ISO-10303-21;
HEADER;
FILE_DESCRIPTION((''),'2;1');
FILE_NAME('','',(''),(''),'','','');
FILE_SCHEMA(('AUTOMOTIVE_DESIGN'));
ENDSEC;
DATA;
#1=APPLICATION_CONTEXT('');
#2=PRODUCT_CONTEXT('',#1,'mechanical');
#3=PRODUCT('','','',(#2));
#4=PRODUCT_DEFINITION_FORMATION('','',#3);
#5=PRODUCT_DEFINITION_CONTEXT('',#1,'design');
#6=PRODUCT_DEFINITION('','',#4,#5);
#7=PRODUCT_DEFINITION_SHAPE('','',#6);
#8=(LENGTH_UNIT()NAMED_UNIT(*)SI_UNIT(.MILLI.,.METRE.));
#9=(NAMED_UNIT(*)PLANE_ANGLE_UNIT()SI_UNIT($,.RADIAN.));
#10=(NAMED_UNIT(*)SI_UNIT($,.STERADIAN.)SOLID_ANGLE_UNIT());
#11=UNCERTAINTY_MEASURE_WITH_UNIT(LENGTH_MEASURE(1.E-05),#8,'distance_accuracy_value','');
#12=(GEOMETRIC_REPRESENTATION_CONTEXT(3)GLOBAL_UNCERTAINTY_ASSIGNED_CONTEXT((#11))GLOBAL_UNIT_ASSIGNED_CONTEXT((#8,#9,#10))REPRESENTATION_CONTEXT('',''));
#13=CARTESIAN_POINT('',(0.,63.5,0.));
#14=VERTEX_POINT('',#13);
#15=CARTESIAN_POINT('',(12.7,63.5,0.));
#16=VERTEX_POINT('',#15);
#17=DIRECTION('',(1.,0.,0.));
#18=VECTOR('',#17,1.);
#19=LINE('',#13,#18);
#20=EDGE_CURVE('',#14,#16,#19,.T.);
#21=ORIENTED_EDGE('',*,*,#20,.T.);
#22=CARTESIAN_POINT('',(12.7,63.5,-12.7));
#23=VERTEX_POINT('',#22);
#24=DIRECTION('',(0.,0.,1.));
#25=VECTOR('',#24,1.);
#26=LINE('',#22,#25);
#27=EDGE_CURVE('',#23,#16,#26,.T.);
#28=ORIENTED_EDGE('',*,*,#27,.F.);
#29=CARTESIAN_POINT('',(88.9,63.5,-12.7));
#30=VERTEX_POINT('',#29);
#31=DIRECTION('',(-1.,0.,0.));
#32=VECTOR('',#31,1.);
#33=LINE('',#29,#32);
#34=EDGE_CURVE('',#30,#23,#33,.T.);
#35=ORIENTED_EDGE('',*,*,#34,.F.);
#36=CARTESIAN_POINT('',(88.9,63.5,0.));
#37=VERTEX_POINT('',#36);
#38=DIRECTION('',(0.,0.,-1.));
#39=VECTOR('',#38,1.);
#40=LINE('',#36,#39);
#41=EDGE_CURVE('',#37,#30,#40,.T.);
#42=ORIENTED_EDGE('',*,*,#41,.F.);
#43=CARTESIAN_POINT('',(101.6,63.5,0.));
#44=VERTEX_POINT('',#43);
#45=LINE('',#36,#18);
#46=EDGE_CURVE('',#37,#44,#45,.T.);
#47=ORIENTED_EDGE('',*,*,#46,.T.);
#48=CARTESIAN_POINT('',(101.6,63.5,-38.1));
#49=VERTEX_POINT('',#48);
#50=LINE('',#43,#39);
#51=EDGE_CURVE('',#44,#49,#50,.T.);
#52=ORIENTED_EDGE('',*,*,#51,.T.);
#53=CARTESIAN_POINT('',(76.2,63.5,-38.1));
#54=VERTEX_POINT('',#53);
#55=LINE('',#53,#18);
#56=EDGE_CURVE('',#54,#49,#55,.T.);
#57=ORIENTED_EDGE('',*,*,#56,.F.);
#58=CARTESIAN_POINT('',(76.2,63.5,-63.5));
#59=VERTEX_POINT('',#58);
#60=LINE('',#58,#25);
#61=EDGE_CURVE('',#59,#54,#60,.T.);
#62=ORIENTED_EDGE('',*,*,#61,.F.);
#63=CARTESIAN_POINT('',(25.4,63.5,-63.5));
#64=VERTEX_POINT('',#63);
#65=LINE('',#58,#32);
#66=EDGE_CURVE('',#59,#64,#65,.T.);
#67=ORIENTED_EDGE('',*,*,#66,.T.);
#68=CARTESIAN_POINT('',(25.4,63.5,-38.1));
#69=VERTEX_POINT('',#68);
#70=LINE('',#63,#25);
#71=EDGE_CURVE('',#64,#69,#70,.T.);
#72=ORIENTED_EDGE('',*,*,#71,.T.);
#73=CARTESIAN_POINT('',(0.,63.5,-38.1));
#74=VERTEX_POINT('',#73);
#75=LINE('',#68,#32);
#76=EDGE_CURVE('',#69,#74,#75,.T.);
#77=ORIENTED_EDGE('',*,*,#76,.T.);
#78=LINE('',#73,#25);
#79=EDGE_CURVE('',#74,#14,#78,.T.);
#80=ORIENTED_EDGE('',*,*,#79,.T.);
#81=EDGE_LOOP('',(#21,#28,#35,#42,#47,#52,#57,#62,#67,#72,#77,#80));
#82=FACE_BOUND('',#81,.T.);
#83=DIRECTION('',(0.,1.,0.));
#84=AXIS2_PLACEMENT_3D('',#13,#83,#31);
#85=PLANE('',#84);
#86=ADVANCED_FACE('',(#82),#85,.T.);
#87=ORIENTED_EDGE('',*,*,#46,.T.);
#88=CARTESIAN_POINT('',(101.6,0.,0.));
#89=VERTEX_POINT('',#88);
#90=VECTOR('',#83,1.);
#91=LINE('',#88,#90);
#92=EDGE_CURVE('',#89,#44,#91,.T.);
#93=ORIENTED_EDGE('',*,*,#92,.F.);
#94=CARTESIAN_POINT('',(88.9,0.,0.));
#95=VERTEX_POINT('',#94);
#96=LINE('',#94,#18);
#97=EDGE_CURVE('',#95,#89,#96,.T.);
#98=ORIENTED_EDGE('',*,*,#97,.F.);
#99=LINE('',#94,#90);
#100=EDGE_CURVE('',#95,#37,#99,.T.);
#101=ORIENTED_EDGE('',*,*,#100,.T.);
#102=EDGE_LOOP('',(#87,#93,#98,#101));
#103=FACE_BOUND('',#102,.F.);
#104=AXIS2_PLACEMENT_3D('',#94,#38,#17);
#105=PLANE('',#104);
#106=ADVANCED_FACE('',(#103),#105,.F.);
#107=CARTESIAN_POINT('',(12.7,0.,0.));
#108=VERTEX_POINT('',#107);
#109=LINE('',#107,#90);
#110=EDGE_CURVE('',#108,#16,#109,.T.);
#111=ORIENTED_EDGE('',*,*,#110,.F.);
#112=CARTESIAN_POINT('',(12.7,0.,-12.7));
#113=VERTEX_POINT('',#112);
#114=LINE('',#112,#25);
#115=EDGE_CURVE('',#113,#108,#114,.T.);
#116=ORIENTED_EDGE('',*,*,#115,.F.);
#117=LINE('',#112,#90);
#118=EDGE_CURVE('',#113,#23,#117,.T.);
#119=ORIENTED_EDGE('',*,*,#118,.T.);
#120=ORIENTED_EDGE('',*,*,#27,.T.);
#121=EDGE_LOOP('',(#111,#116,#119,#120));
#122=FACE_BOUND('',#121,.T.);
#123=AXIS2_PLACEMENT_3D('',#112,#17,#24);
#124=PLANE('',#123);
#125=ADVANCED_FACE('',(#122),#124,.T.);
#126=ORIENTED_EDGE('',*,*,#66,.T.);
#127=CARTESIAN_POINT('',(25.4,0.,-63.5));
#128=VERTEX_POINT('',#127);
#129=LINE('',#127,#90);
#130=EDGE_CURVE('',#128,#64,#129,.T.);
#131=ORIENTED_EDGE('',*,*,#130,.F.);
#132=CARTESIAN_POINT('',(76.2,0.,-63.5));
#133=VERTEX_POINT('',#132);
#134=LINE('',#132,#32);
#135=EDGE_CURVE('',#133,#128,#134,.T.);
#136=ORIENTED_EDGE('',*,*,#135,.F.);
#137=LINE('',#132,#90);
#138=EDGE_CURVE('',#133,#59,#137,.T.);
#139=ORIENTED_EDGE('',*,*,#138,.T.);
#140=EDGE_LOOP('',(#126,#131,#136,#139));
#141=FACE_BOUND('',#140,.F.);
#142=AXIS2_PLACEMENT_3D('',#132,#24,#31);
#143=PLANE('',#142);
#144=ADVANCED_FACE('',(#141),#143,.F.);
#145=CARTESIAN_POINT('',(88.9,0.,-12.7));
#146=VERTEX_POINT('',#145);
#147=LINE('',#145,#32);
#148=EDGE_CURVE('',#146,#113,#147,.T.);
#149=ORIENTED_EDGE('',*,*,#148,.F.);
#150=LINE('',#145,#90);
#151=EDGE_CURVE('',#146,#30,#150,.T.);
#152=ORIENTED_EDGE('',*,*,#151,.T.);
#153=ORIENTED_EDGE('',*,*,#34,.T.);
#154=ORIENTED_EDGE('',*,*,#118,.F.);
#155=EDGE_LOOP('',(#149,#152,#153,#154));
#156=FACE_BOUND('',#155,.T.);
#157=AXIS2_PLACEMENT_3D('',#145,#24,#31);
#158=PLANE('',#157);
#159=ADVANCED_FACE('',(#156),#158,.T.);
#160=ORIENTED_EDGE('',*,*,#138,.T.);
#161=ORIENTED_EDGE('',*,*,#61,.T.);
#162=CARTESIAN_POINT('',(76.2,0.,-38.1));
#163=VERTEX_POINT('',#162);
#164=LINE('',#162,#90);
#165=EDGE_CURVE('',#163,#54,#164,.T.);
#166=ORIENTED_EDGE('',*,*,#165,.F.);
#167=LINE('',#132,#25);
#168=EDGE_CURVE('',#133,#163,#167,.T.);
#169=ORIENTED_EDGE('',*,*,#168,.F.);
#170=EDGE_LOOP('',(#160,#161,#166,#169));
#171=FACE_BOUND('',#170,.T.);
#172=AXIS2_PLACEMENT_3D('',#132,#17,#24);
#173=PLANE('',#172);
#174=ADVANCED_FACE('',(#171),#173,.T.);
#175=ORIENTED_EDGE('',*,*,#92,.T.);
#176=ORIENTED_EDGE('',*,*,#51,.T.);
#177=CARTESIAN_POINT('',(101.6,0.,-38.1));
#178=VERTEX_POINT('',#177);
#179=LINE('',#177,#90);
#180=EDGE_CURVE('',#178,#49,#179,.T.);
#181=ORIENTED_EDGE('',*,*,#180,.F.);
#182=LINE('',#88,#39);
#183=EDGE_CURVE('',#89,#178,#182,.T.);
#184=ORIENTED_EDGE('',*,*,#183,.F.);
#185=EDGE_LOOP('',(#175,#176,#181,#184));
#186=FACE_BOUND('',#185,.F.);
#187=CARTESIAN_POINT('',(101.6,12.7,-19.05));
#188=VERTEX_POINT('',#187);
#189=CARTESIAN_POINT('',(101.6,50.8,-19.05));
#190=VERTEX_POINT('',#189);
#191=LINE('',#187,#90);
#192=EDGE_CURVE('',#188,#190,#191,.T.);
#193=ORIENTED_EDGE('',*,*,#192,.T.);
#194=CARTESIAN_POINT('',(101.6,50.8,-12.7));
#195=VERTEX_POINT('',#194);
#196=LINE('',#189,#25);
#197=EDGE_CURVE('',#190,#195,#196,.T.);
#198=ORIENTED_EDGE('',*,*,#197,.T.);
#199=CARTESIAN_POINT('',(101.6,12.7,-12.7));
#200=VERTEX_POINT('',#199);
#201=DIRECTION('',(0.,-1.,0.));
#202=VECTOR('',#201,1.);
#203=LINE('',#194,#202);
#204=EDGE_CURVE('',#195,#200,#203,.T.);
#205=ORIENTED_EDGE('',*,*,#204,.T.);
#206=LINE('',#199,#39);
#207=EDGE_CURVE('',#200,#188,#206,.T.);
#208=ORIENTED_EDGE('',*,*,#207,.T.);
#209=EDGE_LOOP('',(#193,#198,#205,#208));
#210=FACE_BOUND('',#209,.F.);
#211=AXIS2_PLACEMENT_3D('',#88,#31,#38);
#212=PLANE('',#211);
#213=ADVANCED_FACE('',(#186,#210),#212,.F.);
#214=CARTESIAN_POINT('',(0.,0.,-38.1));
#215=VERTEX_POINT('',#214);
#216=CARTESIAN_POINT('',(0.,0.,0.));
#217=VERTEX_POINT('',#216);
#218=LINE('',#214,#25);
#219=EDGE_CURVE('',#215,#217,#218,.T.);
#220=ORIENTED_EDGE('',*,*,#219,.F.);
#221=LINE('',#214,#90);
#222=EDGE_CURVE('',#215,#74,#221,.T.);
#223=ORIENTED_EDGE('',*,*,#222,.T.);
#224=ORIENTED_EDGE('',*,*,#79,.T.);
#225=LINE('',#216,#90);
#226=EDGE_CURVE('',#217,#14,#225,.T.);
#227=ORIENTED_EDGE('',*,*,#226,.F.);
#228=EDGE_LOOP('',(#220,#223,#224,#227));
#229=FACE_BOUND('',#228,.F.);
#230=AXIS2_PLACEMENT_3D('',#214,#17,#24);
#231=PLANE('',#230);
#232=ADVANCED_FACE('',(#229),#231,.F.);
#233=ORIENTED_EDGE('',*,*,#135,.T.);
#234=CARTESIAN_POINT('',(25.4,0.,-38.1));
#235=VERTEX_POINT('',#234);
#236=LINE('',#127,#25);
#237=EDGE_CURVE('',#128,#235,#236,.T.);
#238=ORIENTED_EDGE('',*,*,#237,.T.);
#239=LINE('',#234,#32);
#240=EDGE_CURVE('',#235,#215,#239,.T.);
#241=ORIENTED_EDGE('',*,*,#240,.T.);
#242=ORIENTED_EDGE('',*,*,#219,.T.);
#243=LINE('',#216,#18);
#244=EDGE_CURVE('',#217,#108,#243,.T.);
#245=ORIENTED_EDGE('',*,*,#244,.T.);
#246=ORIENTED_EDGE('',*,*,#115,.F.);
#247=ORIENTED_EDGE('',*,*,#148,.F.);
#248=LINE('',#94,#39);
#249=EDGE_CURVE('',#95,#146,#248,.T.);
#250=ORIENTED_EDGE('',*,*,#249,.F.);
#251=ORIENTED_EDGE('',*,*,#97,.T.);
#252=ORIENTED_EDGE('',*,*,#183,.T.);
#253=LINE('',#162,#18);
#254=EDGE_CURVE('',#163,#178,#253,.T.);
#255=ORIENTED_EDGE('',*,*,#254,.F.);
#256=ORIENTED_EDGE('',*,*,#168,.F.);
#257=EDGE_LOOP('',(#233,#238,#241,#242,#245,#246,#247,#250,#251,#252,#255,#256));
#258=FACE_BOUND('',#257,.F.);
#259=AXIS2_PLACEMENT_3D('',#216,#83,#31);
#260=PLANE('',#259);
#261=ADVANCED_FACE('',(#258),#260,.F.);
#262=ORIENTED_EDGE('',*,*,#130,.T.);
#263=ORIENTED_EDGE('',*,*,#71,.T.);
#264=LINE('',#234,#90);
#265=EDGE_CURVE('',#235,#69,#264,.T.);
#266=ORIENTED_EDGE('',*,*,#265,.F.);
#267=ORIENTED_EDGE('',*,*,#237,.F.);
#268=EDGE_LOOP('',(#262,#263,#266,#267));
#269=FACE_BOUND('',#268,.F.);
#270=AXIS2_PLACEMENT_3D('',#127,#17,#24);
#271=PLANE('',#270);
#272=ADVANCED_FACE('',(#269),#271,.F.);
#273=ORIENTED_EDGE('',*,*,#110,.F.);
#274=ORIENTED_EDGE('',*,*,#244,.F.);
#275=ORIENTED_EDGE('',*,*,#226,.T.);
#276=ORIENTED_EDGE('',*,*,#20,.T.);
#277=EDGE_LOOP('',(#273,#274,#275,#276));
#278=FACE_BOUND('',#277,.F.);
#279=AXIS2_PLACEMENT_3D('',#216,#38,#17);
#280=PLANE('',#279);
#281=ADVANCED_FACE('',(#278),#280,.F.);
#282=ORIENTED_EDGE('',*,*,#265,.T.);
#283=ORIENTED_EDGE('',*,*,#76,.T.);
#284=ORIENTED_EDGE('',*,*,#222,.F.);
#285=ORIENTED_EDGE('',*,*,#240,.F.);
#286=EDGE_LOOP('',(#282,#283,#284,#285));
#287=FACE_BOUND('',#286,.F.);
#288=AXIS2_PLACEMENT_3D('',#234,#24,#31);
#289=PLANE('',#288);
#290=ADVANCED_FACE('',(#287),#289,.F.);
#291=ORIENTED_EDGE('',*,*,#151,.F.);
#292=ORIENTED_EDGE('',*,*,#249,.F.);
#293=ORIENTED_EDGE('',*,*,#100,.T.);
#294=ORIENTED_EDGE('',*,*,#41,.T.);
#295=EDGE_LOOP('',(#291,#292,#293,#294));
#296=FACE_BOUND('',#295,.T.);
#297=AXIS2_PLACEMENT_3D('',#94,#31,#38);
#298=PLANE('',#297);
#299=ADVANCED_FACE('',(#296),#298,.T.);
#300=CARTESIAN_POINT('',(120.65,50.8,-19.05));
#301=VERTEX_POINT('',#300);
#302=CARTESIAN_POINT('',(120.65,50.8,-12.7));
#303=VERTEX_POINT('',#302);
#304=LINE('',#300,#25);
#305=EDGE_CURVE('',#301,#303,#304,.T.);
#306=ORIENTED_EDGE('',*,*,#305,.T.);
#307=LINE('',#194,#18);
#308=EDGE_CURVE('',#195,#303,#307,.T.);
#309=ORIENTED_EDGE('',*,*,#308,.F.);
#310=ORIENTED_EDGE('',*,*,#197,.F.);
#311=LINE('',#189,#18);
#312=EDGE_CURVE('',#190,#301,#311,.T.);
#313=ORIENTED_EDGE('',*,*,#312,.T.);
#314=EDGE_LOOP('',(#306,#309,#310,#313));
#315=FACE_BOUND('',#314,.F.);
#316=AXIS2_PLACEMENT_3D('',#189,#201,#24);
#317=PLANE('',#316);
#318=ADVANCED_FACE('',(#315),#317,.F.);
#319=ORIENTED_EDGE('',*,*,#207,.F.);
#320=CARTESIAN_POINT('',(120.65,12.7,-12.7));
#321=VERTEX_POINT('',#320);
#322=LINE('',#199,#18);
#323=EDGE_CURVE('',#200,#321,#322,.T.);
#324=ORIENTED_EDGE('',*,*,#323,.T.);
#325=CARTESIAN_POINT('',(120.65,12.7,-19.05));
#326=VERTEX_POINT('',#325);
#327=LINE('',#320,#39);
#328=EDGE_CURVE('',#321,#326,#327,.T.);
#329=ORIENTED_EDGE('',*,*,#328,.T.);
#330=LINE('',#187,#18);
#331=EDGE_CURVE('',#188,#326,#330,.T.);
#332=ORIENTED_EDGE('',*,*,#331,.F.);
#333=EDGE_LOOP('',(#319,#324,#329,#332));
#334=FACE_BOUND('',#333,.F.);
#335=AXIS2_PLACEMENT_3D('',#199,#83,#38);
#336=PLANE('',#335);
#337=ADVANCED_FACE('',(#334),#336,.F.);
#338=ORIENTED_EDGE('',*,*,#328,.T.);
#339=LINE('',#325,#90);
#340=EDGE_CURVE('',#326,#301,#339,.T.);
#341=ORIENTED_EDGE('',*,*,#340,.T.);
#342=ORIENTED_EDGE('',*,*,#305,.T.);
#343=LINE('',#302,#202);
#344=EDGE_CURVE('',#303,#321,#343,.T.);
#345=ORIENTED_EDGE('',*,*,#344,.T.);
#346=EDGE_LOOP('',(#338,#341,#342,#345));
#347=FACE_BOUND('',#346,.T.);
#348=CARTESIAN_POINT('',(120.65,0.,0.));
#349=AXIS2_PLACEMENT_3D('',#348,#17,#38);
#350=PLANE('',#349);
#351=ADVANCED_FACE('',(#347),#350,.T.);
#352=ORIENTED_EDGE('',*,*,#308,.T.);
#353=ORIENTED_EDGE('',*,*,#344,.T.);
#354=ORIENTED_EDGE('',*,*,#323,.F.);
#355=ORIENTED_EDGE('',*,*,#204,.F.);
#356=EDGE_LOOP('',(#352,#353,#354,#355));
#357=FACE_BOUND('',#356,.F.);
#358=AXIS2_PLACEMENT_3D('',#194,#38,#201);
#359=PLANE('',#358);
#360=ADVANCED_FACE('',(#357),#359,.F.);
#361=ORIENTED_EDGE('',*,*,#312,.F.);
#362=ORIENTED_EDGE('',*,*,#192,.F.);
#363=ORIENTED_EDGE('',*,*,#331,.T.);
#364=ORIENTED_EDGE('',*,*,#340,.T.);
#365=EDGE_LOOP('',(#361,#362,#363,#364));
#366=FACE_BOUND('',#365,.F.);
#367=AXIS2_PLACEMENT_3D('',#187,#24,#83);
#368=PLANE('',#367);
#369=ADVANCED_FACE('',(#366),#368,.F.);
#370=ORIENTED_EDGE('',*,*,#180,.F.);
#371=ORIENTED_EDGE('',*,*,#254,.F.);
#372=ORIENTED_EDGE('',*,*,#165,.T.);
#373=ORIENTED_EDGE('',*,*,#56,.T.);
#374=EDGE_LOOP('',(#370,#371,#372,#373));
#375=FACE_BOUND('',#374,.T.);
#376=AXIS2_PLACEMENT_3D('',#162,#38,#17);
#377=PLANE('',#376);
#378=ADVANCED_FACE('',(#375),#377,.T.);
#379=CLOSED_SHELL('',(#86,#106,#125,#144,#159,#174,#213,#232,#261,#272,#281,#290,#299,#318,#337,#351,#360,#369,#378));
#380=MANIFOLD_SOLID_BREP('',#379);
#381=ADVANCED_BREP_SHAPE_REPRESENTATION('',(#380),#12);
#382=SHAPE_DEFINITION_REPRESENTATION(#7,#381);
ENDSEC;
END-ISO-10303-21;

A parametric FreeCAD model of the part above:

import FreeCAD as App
import Part
import Sketcher
Q = App.Units.Quantity

doc = App.newDocument("Part")
body = doc.addObject("PartDesign::Body", "Body")

# Sketch on XZ plane
sketch1 = body.newObject("Sketcher::SketchObject", "Sketch")
sketch1.AttachmentSupport = (doc.getObject("XZ_Plane"), [""])
sketch1.MapMode = "FlatFace"
sketch1.addGeometry([
    Part.LineSegment(App.Vector(89, 0, 0), App.Vector(102, 0, 0)),  # 0
    Part.LineSegment(App.Vector(102, 0, 0), App.Vector(102, -38, 0)),  # 1
    Part.LineSegment(App.Vector(102, -38, 0), App.Vector(76, -38, 0)),  # 2
    Part.LineSegment(App.Vector(76, -38, 0), App.Vector(76, -64, 0)),  # 3
    Part.LineSegment(App.Vector(76, -64, 0), App.Vector(25, -64, 0)),  # 4
    Part.LineSegment(App.Vector(25, -64, 0), App.Vector(25, -38, 0)),  # 5
    Part.LineSegment(App.Vector(25, -38, 0), App.Vector(0, -38, 0)),  # 6
    Part.LineSegment(App.Vector(0, -38, 0), App.Vector(0, 0, 0)),  # 7
    Part.LineSegment(App.Vector(0, 0, 0), App.Vector(13, 0, 0)),  # 8
    Part.LineSegment(App.Vector(13, 0, 0), App.Vector(13, -13, 0)),  # 9
    Part.LineSegment(App.Vector(13, -13, 0), App.Vector(89, -13, 0)),  # 10
    Part.LineSegment(App.Vector(89, -13, 0), App.Vector(89, 0, 0)),  # 11
], False)
sketch1.addConstraint([
    Sketcher.Constraint("Coincident", 0, 2, 1, 1),
    Sketcher.Constraint("Coincident", 1, 2, 2, 1),
    Sketcher.Constraint("Coincident", 2, 2, 3, 1),
    Sketcher.Constraint("Coincident", 3, 2, 4, 1),
    Sketcher.Constraint("Coincident", 4, 2, 5, 1),
    Sketcher.Constraint("Coincident", 5, 2, 6, 1),
    Sketcher.Constraint("Coincident", 6, 2, 7, 1),
    Sketcher.Constraint("Coincident", 7, 2, 8, 1),
    Sketcher.Constraint("Coincident", 8, 2, 9, 1),
    Sketcher.Constraint("Coincident", 9, 2, 10, 1),
    Sketcher.Constraint("Coincident", 10, 2, 11, 1),
    Sketcher.Constraint("Coincident", 11, 2, 0, 1),
    Sketcher.Constraint("Horizontal", 0),
    Sketcher.Constraint("Vertical", 1),
    Sketcher.Constraint("Horizontal", 2),
    Sketcher.Constraint("Vertical", 3),
    Sketcher.Constraint("Horizontal", 4),
    Sketcher.Constraint("Vertical", 5),
    Sketcher.Constraint("Horizontal", 6),
    Sketcher.Constraint("Vertical", 7),
    Sketcher.Constraint("Horizontal", 8),
    Sketcher.Constraint("Vertical", 9),
    Sketcher.Constraint("Horizontal", 10),
    Sketcher.Constraint("Vertical", 11),
    Sketcher.Constraint("Coincident", 7, 2, -1, 1),
    Sketcher.Constraint("PointOnObject", 0, 2, -1),
    Sketcher.Constraint("Horizontal", 2, 2, 5, 2),
    Sketcher.Constraint("Equal", 2, 6),
    Sketcher.Constraint("Equal", 0, 8),
    Sketcher.Constraint("Equal", 6, 3),
    Sketcher.Constraint("Equal", 8, 9),
    Sketcher.Constraint("DistanceX", 2, 2, 2, 1, Q("1 in")),
    Sketcher.Constraint("DistanceX", 10, 1, 10, 2, Q("3 in")),
    Sketcher.Constraint("DistanceX", 0, 1, 0, 2, Q("0.5 in")),
    Sketcher.Constraint("DistanceY", 1, 2, 1, 1, Q("1.5 in")),
])
pad1 = body.newObject("PartDesign::Pad", "Pad")
pad1.Profile = sketch1
pad1.Length = Q("2.5 in")
pad1.Reversed = True

# Sketch on YZ plane
sketch2 = body.newObject("Sketcher::SketchObject", "Sketch001")
sketch2.AttachmentSupport = (doc.getObject("YZ_Plane"), [""])
sketch2.MapMode = "FlatFace"
sketch2.AttachmentOffset = App.Placement(App.Vector(0, 0, 4 * 25.4), App.Rotation())
sketch2.addGeometry([
    Part.LineSegment(App.Vector(13, -19, 0), App.Vector(51, -19, 0)),
    Part.LineSegment(App.Vector(51, -19, 0), App.Vector(51, -13, 0)),
    Part.LineSegment(App.Vector(51, -13, 0), App.Vector(13, -13, 0)),
    Part.LineSegment(App.Vector(13, -13, 0), App.Vector(13, -19, 0)),
], False)
sketch2.addConstraint([
    Sketcher.Constraint("Coincident", 0, 2, 1, 1),
    Sketcher.Constraint("Coincident", 1, 2, 2, 1),
    Sketcher.Constraint("Coincident", 2, 2, 3, 1),
    Sketcher.Constraint("Coincident", 3, 2, 0, 1),
    Sketcher.Constraint("Horizontal", 0),
    Sketcher.Constraint("Vertical", 1),
    Sketcher.Constraint("Horizontal", 2),
    Sketcher.Constraint("Vertical", 3),
    Sketcher.Constraint("DistanceX", 0, 1, 0, 2, Q("1.5 in")),
    Sketcher.Constraint("DistanceY", 1, 1, 1, 2, Q("0.25 in")),
    Sketcher.Constraint("DistanceX", -1, 1, 0, 2, Q("2 in")),
    Sketcher.Constraint("DistanceY", 1, 2, -1, 1, Q("0.5 in")),
])
pad2 = body.newObject("PartDesign::Pad", "Pad001")
pad2.Profile = sketch2
pad2.Length = Q("0.75 in")

doc.recompute()
